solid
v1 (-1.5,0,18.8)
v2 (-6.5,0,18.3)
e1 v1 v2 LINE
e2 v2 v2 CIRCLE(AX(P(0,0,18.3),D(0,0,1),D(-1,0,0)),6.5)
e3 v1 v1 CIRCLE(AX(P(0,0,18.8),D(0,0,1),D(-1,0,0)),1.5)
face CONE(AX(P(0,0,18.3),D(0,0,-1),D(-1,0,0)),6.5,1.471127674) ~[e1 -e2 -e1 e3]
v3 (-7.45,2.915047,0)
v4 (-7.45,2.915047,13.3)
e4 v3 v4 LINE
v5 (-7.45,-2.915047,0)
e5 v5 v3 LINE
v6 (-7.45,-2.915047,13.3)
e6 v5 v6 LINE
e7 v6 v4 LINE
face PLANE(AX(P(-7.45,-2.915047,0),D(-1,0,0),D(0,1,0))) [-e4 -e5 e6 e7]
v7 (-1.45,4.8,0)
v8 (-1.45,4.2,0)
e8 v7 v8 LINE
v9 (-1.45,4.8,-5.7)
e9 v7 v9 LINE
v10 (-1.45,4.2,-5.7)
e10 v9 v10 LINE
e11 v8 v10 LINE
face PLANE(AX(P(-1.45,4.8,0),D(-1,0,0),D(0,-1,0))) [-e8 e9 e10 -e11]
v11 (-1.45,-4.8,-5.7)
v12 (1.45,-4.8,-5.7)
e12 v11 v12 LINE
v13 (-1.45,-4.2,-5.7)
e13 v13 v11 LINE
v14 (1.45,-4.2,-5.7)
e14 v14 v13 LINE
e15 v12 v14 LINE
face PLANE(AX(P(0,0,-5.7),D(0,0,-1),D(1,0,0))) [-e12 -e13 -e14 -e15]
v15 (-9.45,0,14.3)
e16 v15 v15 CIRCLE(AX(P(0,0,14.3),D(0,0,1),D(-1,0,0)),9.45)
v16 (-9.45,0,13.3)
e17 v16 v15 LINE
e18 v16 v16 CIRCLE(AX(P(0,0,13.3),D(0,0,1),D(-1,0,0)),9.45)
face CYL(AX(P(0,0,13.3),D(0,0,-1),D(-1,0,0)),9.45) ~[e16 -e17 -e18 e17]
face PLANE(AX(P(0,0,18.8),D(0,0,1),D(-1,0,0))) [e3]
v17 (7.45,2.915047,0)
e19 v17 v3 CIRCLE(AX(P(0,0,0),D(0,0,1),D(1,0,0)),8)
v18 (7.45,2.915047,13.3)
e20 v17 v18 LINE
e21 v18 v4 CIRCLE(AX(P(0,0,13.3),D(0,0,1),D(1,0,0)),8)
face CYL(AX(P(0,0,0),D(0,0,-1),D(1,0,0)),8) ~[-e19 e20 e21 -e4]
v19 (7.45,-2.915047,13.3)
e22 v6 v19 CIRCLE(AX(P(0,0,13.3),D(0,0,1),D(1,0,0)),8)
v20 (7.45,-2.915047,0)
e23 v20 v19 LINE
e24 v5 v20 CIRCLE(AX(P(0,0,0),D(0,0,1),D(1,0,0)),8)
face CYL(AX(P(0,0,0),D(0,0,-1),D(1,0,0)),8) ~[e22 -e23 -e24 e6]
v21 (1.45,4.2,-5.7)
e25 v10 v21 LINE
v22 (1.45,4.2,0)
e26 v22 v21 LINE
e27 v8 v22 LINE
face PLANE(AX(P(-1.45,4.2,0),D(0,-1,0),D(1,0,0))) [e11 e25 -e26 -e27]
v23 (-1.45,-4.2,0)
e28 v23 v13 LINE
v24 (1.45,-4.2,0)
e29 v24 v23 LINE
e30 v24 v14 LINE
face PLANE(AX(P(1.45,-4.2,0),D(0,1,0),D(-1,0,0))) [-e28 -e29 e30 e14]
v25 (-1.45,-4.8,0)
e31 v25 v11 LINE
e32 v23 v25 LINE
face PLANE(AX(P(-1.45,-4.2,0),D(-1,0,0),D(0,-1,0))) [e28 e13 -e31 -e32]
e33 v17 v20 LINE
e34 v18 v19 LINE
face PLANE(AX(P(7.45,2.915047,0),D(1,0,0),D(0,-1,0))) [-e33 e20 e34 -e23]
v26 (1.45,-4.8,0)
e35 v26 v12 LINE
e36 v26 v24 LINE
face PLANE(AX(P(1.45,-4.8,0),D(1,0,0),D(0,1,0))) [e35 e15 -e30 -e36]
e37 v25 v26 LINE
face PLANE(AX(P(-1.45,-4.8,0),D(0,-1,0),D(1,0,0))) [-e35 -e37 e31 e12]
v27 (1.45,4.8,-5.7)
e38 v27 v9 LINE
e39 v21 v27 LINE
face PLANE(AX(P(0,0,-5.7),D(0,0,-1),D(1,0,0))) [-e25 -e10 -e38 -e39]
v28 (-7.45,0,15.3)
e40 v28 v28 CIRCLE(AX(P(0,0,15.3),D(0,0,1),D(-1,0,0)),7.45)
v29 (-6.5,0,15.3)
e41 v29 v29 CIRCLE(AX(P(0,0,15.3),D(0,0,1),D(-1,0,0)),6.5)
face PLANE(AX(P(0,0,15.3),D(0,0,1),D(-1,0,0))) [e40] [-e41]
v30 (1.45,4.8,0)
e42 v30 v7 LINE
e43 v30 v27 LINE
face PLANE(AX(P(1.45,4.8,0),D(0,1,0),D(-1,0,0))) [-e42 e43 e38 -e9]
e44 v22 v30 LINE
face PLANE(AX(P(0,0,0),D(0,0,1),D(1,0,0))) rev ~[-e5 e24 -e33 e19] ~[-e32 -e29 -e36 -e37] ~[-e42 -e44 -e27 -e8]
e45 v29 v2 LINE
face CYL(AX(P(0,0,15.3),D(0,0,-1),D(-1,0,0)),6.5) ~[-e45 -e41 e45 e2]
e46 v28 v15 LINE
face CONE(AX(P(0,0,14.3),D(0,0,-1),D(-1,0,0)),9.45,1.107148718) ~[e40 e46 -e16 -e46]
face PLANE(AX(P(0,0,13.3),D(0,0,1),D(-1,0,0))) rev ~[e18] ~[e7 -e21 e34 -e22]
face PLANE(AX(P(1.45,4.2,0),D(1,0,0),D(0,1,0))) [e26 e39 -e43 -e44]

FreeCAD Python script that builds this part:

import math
import FreeCAD as App
import Part
import Sketcher

V = App.Vector


def edges_at(feature, points):
    """Names of the edges that pass closest to the given points."""
    edges = feature.Shape.Edges
    near = lambda p: min(range(len(edges)), key=lambda i: edges[i].distToShape(Part.Vertex(*p))[0])
    return sorted({f"Edge{near(p) + 1}" for p in points})

doc = App.newDocument("Part")
body = doc.addObject("PartDesign::Body", "Body")

# Sketch on XY plane
sketch1 = body.newObject("Sketcher::SketchObject", "Sketch")
sketch1.AttachmentSupport = (doc.getObject("XY_Plane"), [""])
sketch1.MapMode = "FlatFace"
sketch1.addGeometry(Part.LineSegment(V(7, -3, 0), V(7, 3, 0)), False)
sketch1.addGeometry(Part.ArcOfCircle(Part.Circle(V(0, 0, 0), V(0, 0, 1), 8), math.radians(21), math.radians(159)), False)
sketch1.addGeometry(Part.LineSegment(V(-7, 3, 0), V(-7, -3, 0)), False)
sketch1.addGeometry(Part.ArcOfCircle(Part.Circle(V(0, 0, 0), V(0, 0, 1), 8), math.radians(-159), math.radians(-21)), False)
sketch1.addConstraint(Sketcher.Constraint("Coincident", 0, 2, 1, 1))
sketch1.addConstraint(Sketcher.Constraint("Coincident", 1, 2, 2, 1))
sketch1.addConstraint(Sketcher.Constraint("Coincident", 2, 2, 3, 1))
sketch1.addConstraint(Sketcher.Constraint("Coincident", 3, 2, 0, 1))
sketch1.addConstraint(Sketcher.Constraint("Vertical", 0))
sketch1.addConstraint(Sketcher.Constraint("Vertical", 2))
sketch1.addConstraint(Sketcher.Constraint("Coincident", 1, 3, -1, 1))
sketch1.addConstraint(Sketcher.Constraint("Coincident", 3, 3, -1, 1))
sketch1.addConstraint(Sketcher.Constraint("Equal", 1, 3))
sketch1.addConstraint(Sketcher.Constraint("Horizontal", 0, 2, 1, 2))
sketch1.addConstraint(Sketcher.Constraint("Radius", 1, 8.0))
sketch1.addConstraint(Sketcher.Constraint("DistanceX", 1, 2, 0, 2, 14.9))
pad1 = body.newObject("PartDesign::Pad", "Pad")
pad1.Profile = sketch1
pad1.Length = 13.3

# Sketch on XY plane
sketch2 = body.newObject("Sketcher::SketchObject", "Sketch001")
sketch2.AttachmentSupport = (doc.getObject("XY_Plane"), [""])
sketch2.MapMode = "FlatFace"
sketch2.AttachmentOffset = App.Placement(V(0, 0, 13.3), App.Rotation())
sketch2.addGeometry(Part.Circle(V(0, 0, 0), V(0, 0, 1), 9), False)
sketch2.addConstraint(Sketcher.Constraint("Coincident", 0, 3, -1, 1))
sketch2.addConstraint(Sketcher.Constraint("Diameter", 0, 18.9))
pad2 = body.newObject("PartDesign::Pad", "Pad001")
pad2.Profile = sketch2
pad2.Length = 2
doc.recompute()

chamfer = body.newObject("PartDesign::Chamfer", "Chamfer")
chamfer.Base = (pad2, edges_at(pad2, [(8.81, 3.417, 15.3)]))
chamfer.ChamferType = "Two distances"
chamfer.Size = 2
chamfer.Size2 = 1
chamfer.FlipDirection = True

# Sketch on XY plane
sketch3 = body.newObject("Sketcher::SketchObject", "Sketch002")
sketch3.AttachmentSupport = (doc.getObject("XY_Plane"), [""])
sketch3.MapMode = "FlatFace"
sketch3.AttachmentOffset = App.Placement(V(0, 0, 15.3), App.Rotation())
sketch3.addGeometry(Part.Circle(V(0, 0, 0), V(0, 0, 1), 6), False)
sketch3.addConstraint(Sketcher.Constraint("Coincident", 0, 3, -1, 1))
sketch3.addConstraint(Sketcher.Constraint("Diameter", 0, 13.0))
pad3 = body.newObject("PartDesign::Pad", "Pad002")
pad3.Profile = sketch3
pad3.Length = 3.5
doc.recompute()

chamfer2 = body.newObject("PartDesign::Chamfer", "Chamfer001")
chamfer2.Base = (pad3, edges_at(pad3, [(6.06, 2.35, 18.8)]))
chamfer2.ChamferType = "Two distances"
chamfer2.Size = 5
chamfer2.Size2 = 0.5
chamfer2.FlipDirection = True

# Sketch on XY plane
sketch4 = body.newObject("Sketcher::SketchObject", "Sketch003")
sketch4.AttachmentSupport = (doc.getObject("XY_Plane"), [""])
sketch4.MapMode = "FlatFace"
sketch4.addGeometry(Part.LineSegment(V(-1.4, -4.2, 0), V(1.4, -4.2, 0)), False)
sketch4.addGeometry(Part.LineSegment(V(1.4, -4.2, 0), V(1.4, -4.8, 0)), False)
sketch4.addGeometry(Part.LineSegment(V(1.4, -4.8, 0), V(-1.4, -4.8, 0)), False)
sketch4.addGeometry(Part.LineSegment(V(-1.4, -4.8, 0), V(-1.4, -4.2, 0)), False)
sketch4.addGeometry(Part.LineSegment(V(-1.4, 4.8, 0), V(1.4, 4.8, 0)), False)
sketch4.addGeometry(Part.LineSegment(V(1.4, 4.8, 0), V(1.4, 4.2, 0)), False)
sketch4.addGeometry(Part.LineSegment(V(1.4, 4.2, 0), V(-1.4, 4.2, 0)), False)
sketch4.addGeometry(Part.LineSegment(V(-1.4, 4.2, 0), V(-1.4, 4.8, 0)), False)
sketch4.addConstraint(Sketcher.Constraint("Coincident", 0, 2, 1, 1))
sketch4.addConstraint(Sketcher.Constraint("Coincident", 1, 2, 2, 1))
sketch4.addConstraint(Sketcher.Constraint("Coincident", 2, 2, 3, 1))
sketch4.addConstraint(Sketcher.Constraint("Coincident", 3, 2, 0, 1))
sketch4.addConstraint(Sketcher.Constraint("Coincident", 4, 2, 5, 1))
sketch4.addConstraint(Sketcher.Constraint("Coincident", 5, 2, 6, 1))
sketch4.addConstraint(Sketcher.Constraint("Coincident", 6, 2, 7, 1))
sketch4.addConstraint(Sketcher.Constraint("Coincident", 7, 2, 4, 1))
sketch4.addConstraint(Sketcher.Constraint("Horizontal", 0))
sketch4.addConstraint(Sketcher.Constraint("Vertical", 1))
sketch4.addConstraint(Sketcher.Constraint("Horizontal", 2))
sketch4.addConstraint(Sketcher.Constraint("Vertical", 3))
sketch4.addConstraint(Sketcher.Constraint("Horizontal", 4))
sketch4.addConstraint(Sketcher.Constraint("Vertical", 5))
sketch4.addConstraint(Sketcher.Constraint("Horizontal", 6))
sketch4.addConstraint(Sketcher.Constraint("Vertical", 7))
sketch4.addConstraint(Sketcher.Constraint("Symmetric", 2, 2, 4, 2, -1, 1))
sketch4.addConstraint(Sketcher.Constraint("Symmetric", 0, 2, 6, 2, -1, 1))
sketch4.addConstraint(Sketcher.Constraint("Vertical", 1, 2, 4, 2))
sketch4.addConstraint(Sketcher.Constraint("DistanceX", 0, 1, 0, 2, 2.9))
sketch4.addConstraint(Sketcher.Constraint("DistanceY", 1, 2, 1, 1, 0.6))
sketch4.addConstraint(Sketcher.Constraint("DistanceY", 0, 2, 4, 2, 9.0))
pad4 = body.newObject("PartDesign::Pad", "Pad003")
pad4.Profile = sketch4
pad4.Length = 5.7
pad4.Reversed = True

doc.recompute()
